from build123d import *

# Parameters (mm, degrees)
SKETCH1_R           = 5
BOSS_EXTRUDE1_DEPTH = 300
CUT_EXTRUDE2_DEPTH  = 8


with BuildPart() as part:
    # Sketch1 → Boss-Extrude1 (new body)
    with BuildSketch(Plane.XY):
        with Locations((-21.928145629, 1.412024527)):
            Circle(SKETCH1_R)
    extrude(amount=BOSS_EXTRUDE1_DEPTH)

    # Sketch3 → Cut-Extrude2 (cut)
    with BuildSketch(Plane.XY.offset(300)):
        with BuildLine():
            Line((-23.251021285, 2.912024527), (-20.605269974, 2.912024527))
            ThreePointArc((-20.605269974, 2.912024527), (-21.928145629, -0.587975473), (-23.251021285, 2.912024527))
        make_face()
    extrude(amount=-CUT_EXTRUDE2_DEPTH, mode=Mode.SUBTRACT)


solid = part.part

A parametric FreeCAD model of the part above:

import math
import FreeCAD as App
import Part
import Sketcher
from FreeCAD import Vector

doc = App.newDocument("Part")
body = doc.addObject("PartDesign::Body", "Body")

# Sketch on XY plane
sketch1 = body.newObject("Sketcher::SketchObject", "Sketch")
sketch1.AttachmentSupport = (doc.getObject("XY_Plane"), [""])
sketch1.MapMode = "FlatFace"
sketch1.addGeometry(Part.Circle(Vector(-22, 1, 0), Vector(0, 0, 1), 5), False)
sketch1.addConstraint(Sketcher.Constraint("Diameter", 0, 10.0))
sketch1.addConstraint(Sketcher.Constraint("DistanceX", 0, 3, -1, 1, 21.928146))
sketch1.addConstraint(Sketcher.Constraint("DistanceY", -1, 1, 0, 3, 1.412025))
pad1 = body.newObject("PartDesign::Pad", "Pad")
pad1.Profile = sketch1
pad1.Length = 300

# Sketch on XY plane
sketch2 = body.newObject("Sketcher::SketchObject", "Sketch001")
sketch2.AttachmentSupport = (doc.getObject("XY_Plane"), [""])
sketch2.MapMode = "FlatFace"
sketch2.AttachmentOffset = App.Placement(Vector(0, 0, 300), App.Rotation())
sketch2.addGeometry(Part.LineSegment(Vector(-20.6, 2.9, 0), Vector(-23.3, 2.9, 0)), False)
sketch2.addGeometry(Part.ArcOfCircle(Part.Circle(Vector(-21.9, 1.4, 0), Vector(0, 0, 1), 2), math.radians(131), math.radians(409)), False)
sketch2.addConstraint(Sketcher.Constraint("Coincident", 0, 1, 1, 2))
sketch2.addConstraint(Sketcher.Constraint("Coincident", 1, 1, 0, 2))
sketch2.addConstraint(Sketcher.Constraint("Horizontal", 0))
sketch2.addConstraint(Sketcher.Constraint("Radius", 1, 2.0))
sketch2.addConstraint(Sketcher.Constraint("DistanceY", 1, 3, 0, 1, 1.5))
sketch2.addConstraint(Sketcher.Constraint("DistanceX", 0, 1, -1, 1, 20.60527))
sketch2.addConstraint(Sketcher.Constraint("DistanceY", -1, 1, 1, 3, 1.412025))
pocket1 = body.newObject("PartDesign::Pocket", "Pocket")
pocket1.Profile = sketch2
pocket1.Length = 8

doc.recompute()
